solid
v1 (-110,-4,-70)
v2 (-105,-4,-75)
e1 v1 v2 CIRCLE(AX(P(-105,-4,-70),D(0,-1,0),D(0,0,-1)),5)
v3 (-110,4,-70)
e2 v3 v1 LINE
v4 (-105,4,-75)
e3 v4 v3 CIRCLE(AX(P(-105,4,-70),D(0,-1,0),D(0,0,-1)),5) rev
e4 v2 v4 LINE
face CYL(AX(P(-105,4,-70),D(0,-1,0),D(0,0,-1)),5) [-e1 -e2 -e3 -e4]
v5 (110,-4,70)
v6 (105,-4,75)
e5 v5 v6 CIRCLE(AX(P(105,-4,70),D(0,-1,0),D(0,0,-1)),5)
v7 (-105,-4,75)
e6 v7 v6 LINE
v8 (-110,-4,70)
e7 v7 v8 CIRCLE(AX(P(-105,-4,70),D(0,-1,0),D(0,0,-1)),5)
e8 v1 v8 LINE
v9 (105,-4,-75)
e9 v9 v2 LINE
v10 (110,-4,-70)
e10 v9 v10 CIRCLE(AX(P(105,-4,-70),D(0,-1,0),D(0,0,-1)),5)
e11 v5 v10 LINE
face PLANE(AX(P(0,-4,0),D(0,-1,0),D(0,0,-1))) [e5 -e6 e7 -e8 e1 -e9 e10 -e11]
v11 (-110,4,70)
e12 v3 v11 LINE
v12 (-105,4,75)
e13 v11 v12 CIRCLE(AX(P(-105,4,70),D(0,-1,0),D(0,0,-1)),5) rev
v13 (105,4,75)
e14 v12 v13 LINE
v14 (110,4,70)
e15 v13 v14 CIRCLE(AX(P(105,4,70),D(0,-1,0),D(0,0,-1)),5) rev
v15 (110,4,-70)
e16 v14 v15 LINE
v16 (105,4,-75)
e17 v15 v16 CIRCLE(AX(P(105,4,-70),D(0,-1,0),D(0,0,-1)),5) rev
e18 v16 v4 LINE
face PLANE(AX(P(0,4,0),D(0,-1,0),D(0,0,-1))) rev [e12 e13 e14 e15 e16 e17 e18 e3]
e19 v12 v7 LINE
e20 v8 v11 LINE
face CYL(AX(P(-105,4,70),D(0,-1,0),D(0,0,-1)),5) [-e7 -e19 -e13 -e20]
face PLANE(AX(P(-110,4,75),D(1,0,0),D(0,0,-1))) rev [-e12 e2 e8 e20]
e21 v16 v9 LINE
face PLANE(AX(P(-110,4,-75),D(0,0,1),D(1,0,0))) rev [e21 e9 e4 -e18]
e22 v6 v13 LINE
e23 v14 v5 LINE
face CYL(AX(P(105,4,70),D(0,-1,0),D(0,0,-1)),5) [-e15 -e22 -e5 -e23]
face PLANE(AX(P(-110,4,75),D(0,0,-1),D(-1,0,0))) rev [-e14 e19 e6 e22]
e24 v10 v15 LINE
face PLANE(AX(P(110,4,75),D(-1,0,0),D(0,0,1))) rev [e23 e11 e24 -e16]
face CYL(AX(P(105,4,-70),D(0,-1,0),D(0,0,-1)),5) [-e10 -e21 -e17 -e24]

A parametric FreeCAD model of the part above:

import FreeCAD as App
import Part
import Sketcher


def edges_at(feature, points):
    """Names of the edges that pass closest to the given points."""
    edges = feature.Shape.Edges
    near = lambda p: min(range(len(edges)), key=lambda i: edges[i].distToShape(Part.Vertex(*p))[0])
    return sorted({f"Edge{near(p) + 1}" for p in points})


def add_polygon(sketch, points):
    """Adds a closed chain of lines whose ends are joined by coincident constraints."""
    first, n = sketch.GeometryCount, len(points)
    for a, b in zip(points, points[1:] + points[:1]):
        sketch.addGeometry(Part.LineSegment(App.Vector(*a, 0), App.Vector(*b, 0)), False)
    for i in range(n):
        sketch.addConstraint(Sketcher.Constraint("Coincident", first + i, 2, first + (i + 1) % n, 1))

doc = App.newDocument("Part")
body = doc.addObject("PartDesign::Body", "Body")

sketch1 = body.newObject("Sketcher::SketchObject", "Sketch")
sketch1.AttachmentSupport = (doc.getObject("XZ_Plane"), [""])
sketch1.MapMode = "FlatFace"
add_polygon(sketch1, [(-110, -75), (-110, 75), (110, 75), (110, -75)])
sketch1.addConstraint(Sketcher.Constraint("Vertical", 0))
sketch1.addConstraint(Sketcher.Constraint("Horizontal", 1))
sketch1.addConstraint(Sketcher.Constraint("Vertical", 2))
sketch1.addConstraint(Sketcher.Constraint("Horizontal", 3))
sketch1.addConstraint(Sketcher.Constraint("Symmetric", 0, 2, 2, 2, -1, 1))
sketch1.addConstraint(Sketcher.Constraint("DistanceX", 1, 1, 1, 2, 220.0))
sketch1.addConstraint(Sketcher.Constraint("DistanceY", 0, 1, 0, 2, 150.0))
pad1 = body.newObject("PartDesign::Pad", "Pad")
pad1.Profile = sketch1
pad1.Length = 8
pad1.Midplane = True
doc.recompute()

fillet = body.newObject("PartDesign::Fillet", "Fillet")
fillet.Base = (pad1, edges_at(pad1, [
    (110, 0, 75),
    (-110, 0, 75),
    (-110, 0, -75),
    (110, 0, -75),
]))
fillet.Radius = 5

doc.recompute()
